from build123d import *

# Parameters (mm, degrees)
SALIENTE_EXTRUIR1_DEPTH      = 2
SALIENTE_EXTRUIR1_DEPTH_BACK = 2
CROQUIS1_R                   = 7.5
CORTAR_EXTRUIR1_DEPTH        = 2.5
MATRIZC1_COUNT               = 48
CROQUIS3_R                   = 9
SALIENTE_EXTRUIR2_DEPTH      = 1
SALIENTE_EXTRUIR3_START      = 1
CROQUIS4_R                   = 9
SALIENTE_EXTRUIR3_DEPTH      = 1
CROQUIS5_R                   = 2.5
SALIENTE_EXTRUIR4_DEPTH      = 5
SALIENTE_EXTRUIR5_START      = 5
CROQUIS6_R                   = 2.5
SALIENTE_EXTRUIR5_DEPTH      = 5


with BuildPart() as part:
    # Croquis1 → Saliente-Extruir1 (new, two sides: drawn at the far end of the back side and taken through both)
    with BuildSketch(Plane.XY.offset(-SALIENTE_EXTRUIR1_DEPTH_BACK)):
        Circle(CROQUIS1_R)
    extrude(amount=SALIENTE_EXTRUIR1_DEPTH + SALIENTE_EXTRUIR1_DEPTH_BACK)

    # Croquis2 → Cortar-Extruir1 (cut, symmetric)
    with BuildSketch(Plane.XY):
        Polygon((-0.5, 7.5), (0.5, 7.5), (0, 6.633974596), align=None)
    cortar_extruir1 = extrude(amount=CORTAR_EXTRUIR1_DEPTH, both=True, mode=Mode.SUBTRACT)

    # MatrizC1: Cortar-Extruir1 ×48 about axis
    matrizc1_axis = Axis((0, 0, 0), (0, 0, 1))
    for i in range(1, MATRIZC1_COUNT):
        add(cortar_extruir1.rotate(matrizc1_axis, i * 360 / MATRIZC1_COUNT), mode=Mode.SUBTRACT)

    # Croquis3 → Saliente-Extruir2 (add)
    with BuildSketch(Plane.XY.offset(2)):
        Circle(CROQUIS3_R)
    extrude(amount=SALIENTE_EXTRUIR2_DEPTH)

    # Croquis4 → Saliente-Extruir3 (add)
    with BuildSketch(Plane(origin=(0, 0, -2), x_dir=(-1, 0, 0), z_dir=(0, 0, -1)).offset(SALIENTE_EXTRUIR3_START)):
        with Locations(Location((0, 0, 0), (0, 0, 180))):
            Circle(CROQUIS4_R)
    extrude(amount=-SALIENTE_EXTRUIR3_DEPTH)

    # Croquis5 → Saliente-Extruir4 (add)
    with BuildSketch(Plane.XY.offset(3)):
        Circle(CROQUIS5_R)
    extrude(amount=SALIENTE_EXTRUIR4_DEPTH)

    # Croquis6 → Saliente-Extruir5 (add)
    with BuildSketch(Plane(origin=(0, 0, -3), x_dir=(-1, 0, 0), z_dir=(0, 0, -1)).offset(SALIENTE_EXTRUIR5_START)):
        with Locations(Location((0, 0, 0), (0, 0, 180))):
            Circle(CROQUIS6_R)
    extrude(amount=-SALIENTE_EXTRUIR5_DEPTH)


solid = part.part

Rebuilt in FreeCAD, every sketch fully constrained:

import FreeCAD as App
import Part
import Sketcher
Q = App.Units.Quantity


def add_polygon(sketch, points):
    """Adds a closed chain of lines whose ends are joined by coincident constraints."""
    first, n = sketch.GeometryCount, len(points)
    for a, b in zip(points, points[1:] + points[:1]):
        sketch.addGeometry(Part.LineSegment(App.Vector(*a, 0), App.Vector(*b, 0)), False)
    for i in range(n):
        sketch.addConstraint(Sketcher.Constraint("Coincident", first + i, 2, first + (i + 1) % n, 1))

doc = App.newDocument("Part")
body = doc.addObject("PartDesign::Body", "Body")

sketch1 = body.newObject("Sketcher::SketchObject", "Sketch")
sketch1.AttachmentSupport = (doc.getObject("XY_Plane"), [""])
sketch1.MapMode = "FlatFace"
sketch1.addGeometry(Part.Circle(App.Vector(0, 0, 0), App.Vector(0, 0, 1), 8), False)
sketch1.addConstraint([
    Sketcher.Constraint("Coincident", 0, 3, -1, 1),
    Sketcher.Constraint("Diameter", 0, 15.0),
])
pad1 = body.newObject("PartDesign::Pad", "Pad")
pad1.Profile = sketch1
pad1.Type = "TwoLengths"
pad1.Length = 2
pad1.Length2 = 2

sketch2 = body.newObject("Sketcher::SketchObject", "Sketch001")
sketch2.AttachmentSupport = (doc.getObject("XY_Plane"), [""])
sketch2.MapMode = "FlatFace"
add_polygon(sketch2, [(0.5, 7.5), (-0.5, 7.5), (0, 6.6)])
sketch2.addConstraint([
    Sketcher.Constraint("Horizontal", 0),
    Sketcher.Constraint("PointOnObject", 1, 2, -2),
    Sketcher.Constraint("Equal", 1, 2),
    Sketcher.Constraint("DistanceX", 0, 2, 0, 1, 1.0),
    Sketcher.Constraint("Angle", 1, Q("-60 deg")),
    Sketcher.Constraint("DistanceY", -1, 1, 0, 2, 7.5),
])
pocket1 = body.newObject("PartDesign::Pocket", "Pocket")
pocket1.Profile = sketch2
pocket1.Length = 5
pocket1.Midplane = True
doc.recompute()

polarpattern = body.newObject("PartDesign::PolarPattern", "PolarPattern")
polarpattern.Originals = [pocket1]
polarpattern.Axis = (doc.getObject("Z_Axis"), [""])
polarpattern.Angle = 360
polarpattern.Occurrences = 48
body.Tip = polarpattern

sketch3 = body.newObject("Sketcher::SketchObject", "Sketch002")
sketch3.AttachmentSupport = (doc.getObject("XY_Plane"), [""])
sketch3.MapMode = "FlatFace"
sketch3.AttachmentOffset = App.Placement(App.Vector(0, 0, 2), App.Rotation())
sketch3.addGeometry(Part.Circle(App.Vector(0, 0, 0), App.Vector(0, 0, 1), 9), False)
sketch3.addConstraint([
    Sketcher.Constraint("Coincident", 0, 3, -1, 1),
    Sketcher.Constraint("Diameter", 0, 18.0),
])
pad2 = body.newObject("PartDesign::Pad", "Pad001")
pad2.Profile = sketch3
pad2.Length = 1

sketch4 = body.newObject("Sketcher::SketchObject", "Sketch003")
sketch4.AttachmentSupport = (doc.getObject("XY_Plane"), [""])
sketch4.MapMode = "FlatFace"
sketch4.AttachmentOffset = App.Placement(App.Vector(0, 0, -3), App.Rotation())
sketch4.addGeometry(Part.Circle(App.Vector(0, 0, 0), App.Vector(0, 0, 1), 9), False)
sketch4.addConstraint([
    Sketcher.Constraint("Coincident", 0, 3, -1, 1),
    Sketcher.Constraint("Diameter", 0, 18.0),
])
pad3 = body.newObject("PartDesign::Pad", "Pad002")
pad3.Profile = sketch4
pad3.Length = 1

sketch5 = body.newObject("Sketcher::SketchObject", "Sketch004")
sketch5.AttachmentSupport = (doc.getObject("XY_Plane"), [""])
sketch5.MapMode = "FlatFace"
sketch5.AttachmentOffset = App.Placement(App.Vector(0, 0, 3), App.Rotation())
sketch5.addGeometry(Part.Circle(App.Vector(0, 0, 0), App.Vector(0, 0, 1), 2.5), False)
sketch5.addConstraint([
    Sketcher.Constraint("Coincident", 0, 3, -1, 1),
    Sketcher.Constraint("Diameter", 0, 5.0),
])
pad4 = body.newObject("PartDesign::Pad", "Pad003")
pad4.Profile = sketch5
pad4.Length = 5

sketch6 = body.newObject("Sketcher::SketchObject", "Sketch005")
sketch6.AttachmentSupport = (doc.getObject("XY_Plane"), [""])
sketch6.MapMode = "FlatFace"
sketch6.AttachmentOffset = App.Placement(App.Vector(0, 0, -8), App.Rotation())
sketch6.addGeometry(Part.Circle(App.Vector(0, 0, 0), App.Vector(0, 0, 1), 2.5), False)
sketch6.addConstraint([
    Sketcher.Constraint("Coincident", 0, 3, -1, 1),
    Sketcher.Constraint("Diameter", 0, 5.0),
])
pad5 = body.newObject("PartDesign::Pad", "Pad004")
pad5.Profile = sketch6
pad5.Length = 5

doc.recompute()
